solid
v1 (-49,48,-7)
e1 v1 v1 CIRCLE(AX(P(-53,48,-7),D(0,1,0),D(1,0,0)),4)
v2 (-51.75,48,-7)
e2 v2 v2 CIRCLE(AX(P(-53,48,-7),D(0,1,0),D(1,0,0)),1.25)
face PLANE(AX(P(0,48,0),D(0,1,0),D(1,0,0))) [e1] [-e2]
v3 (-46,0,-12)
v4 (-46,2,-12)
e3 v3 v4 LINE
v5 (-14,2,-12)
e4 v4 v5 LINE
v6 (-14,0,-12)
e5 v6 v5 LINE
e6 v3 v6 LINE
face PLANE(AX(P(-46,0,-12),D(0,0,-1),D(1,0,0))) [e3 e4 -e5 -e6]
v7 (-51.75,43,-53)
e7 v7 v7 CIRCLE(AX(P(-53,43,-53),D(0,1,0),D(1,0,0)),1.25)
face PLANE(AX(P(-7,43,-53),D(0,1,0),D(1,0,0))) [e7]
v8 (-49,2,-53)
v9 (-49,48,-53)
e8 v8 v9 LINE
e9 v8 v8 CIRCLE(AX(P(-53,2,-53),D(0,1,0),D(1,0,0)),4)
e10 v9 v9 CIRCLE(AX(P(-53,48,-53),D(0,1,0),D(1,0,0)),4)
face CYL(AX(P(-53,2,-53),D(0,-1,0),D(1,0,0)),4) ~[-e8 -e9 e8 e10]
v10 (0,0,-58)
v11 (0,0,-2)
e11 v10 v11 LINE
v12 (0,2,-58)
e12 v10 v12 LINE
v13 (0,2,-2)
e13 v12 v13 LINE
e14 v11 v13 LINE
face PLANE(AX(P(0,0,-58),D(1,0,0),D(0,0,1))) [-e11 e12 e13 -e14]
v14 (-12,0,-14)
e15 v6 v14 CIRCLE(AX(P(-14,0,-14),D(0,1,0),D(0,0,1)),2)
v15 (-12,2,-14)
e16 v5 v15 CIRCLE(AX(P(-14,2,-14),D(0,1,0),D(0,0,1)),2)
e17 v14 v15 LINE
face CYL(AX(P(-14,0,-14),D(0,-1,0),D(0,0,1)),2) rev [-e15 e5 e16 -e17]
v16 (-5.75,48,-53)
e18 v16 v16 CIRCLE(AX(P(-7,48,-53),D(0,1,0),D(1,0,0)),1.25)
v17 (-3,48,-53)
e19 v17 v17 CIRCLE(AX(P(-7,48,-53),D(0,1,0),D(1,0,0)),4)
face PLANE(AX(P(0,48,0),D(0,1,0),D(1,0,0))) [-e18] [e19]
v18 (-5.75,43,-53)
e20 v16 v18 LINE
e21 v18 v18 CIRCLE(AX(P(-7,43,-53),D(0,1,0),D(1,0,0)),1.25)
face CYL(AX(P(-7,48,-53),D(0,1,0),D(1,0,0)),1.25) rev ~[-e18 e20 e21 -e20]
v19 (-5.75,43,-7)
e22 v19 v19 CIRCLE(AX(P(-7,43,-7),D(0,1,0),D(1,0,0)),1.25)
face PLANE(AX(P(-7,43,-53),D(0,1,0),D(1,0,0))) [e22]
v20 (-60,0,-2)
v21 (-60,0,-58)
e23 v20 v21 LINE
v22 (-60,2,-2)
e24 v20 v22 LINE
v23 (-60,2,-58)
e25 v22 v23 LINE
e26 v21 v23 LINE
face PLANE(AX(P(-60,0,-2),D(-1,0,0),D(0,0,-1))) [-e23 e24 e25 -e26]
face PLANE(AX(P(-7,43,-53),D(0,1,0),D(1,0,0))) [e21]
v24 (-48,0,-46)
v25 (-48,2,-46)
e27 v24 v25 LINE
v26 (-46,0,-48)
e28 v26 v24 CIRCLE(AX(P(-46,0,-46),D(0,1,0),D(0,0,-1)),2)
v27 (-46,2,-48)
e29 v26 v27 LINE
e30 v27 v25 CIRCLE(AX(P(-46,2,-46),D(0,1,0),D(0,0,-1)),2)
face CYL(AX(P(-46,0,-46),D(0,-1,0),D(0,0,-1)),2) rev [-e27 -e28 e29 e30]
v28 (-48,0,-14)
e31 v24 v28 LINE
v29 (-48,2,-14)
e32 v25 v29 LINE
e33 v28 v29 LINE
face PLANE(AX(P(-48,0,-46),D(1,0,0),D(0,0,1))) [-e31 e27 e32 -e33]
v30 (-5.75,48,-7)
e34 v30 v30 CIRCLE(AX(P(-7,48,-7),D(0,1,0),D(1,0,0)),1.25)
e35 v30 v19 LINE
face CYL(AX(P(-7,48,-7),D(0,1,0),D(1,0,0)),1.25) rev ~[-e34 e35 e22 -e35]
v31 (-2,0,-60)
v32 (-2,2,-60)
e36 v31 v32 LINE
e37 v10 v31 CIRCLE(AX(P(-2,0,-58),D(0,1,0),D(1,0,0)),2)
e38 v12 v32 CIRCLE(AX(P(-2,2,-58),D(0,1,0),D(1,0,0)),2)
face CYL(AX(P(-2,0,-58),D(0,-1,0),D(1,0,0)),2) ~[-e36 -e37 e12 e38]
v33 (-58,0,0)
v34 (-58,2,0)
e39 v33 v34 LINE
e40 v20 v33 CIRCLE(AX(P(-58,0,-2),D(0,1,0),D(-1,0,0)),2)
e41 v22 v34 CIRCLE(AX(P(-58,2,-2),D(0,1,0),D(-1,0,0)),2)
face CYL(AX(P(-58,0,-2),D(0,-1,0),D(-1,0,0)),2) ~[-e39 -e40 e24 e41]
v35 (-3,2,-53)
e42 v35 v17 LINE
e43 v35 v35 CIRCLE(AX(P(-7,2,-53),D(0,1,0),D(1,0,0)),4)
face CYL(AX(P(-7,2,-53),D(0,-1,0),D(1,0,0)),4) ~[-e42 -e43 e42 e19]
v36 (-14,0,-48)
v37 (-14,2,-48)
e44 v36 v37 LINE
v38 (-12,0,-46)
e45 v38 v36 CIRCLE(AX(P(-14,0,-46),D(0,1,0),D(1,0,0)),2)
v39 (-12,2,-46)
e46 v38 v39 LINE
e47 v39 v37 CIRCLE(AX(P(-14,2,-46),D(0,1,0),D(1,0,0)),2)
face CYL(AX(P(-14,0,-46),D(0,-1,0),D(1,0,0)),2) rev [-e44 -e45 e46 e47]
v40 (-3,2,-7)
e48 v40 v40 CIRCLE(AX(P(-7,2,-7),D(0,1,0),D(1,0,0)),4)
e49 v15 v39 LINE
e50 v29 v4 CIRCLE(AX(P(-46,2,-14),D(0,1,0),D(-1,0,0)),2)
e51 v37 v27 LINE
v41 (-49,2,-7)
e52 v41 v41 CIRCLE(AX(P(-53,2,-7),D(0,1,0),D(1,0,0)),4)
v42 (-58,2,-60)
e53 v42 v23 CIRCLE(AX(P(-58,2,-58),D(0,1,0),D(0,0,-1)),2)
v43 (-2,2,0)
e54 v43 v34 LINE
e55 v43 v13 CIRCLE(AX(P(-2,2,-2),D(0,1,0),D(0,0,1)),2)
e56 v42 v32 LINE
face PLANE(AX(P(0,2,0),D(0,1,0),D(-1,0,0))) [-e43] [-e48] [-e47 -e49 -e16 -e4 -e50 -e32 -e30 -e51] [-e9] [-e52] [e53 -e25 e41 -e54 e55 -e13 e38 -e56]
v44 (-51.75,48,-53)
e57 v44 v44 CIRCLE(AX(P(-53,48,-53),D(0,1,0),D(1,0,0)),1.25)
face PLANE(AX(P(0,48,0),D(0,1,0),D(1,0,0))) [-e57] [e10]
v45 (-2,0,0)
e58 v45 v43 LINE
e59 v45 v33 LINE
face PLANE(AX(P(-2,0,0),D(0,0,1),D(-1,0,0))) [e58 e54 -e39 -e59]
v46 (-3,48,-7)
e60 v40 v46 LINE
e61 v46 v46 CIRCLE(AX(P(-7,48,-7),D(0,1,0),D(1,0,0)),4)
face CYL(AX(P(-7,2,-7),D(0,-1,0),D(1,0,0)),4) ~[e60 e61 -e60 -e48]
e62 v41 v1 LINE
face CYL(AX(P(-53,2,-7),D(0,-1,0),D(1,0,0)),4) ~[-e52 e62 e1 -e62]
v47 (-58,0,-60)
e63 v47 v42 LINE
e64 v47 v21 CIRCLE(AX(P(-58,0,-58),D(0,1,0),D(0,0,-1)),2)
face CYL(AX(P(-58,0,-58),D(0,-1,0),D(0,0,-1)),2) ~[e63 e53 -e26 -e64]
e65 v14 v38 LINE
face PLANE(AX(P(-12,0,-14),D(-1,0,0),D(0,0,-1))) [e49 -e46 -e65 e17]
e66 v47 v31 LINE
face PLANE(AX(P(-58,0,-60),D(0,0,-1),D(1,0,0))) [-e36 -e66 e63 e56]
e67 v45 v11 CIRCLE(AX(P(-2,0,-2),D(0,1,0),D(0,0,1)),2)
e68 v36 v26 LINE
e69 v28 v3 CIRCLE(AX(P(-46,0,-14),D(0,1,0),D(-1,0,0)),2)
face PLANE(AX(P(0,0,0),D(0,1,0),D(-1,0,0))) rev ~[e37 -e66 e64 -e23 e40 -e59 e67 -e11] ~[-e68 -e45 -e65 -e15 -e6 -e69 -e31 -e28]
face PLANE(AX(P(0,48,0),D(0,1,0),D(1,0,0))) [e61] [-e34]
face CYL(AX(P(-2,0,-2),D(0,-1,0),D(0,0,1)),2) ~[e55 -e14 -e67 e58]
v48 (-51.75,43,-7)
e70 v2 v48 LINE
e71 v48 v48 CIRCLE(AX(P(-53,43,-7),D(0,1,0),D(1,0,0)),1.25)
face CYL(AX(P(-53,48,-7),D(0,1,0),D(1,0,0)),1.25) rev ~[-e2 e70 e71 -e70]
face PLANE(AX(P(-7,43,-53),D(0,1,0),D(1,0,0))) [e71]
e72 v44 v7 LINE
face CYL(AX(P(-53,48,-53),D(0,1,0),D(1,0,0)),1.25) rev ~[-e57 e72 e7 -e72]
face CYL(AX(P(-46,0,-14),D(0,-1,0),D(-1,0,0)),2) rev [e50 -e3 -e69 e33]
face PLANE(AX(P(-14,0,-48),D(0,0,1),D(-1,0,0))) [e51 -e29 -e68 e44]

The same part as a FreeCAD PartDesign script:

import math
import FreeCAD as App
import Part
import Sketcher
Q = App.Units.Quantity

doc = App.newDocument("Part")
body = doc.addObject("PartDesign::Body", "Body")

sketch1 = body.newObject("Sketcher::SketchObject", "Sketch")
sketch1.AttachmentSupport = (doc.getObject("XZ_Plane"), [""])
sketch1.MapMode = "FlatFace"
sketch1.addGeometry([
    Part.LineSegment(App.Vector(-58, 0, 0), App.Vector(-2, 0, 0)),
    Part.ArcOfCircle(Part.Circle(App.Vector(-2, -2, 0), App.Vector(0, 0, 1), 2), math.radians(0), math.radians(90)),
    Part.LineSegment(App.Vector(0, -2, 0), App.Vector(0, -58, 0)),
    Part.ArcOfCircle(Part.Circle(App.Vector(-2, -58, 0), App.Vector(0, 0, 1), 2), math.radians(-90), math.radians(0)),
    Part.LineSegment(App.Vector(-2, -60, 0), App.Vector(-58, -60, 0)),
    Part.ArcOfCircle(Part.Circle(App.Vector(-58, -58, 0), App.Vector(0, 0, 1), 2), math.radians(180), math.radians(270)),
    Part.LineSegment(App.Vector(-60, -58, 0), App.Vector(-60, -2, 0)),
    Part.ArcOfCircle(Part.Circle(App.Vector(-58, -2, 0), App.Vector(0, 0, 1), 2), math.radians(90), math.radians(180)),
    Part.LineSegment(App.Vector(-48, -14, 0), App.Vector(-48, -46, 0)),
    Part.ArcOfCircle(Part.Circle(App.Vector(-46, -46, 0), App.Vector(0, 0, 1), 2), math.radians(180), math.radians(270)),
    Part.LineSegment(App.Vector(-46, -48, 0), App.Vector(-14, -48, 0)),
    Part.ArcOfCircle(Part.Circle(App.Vector(-14, -46, 0), App.Vector(0, 0, 1), 2), math.radians(-90), math.radians(0)),
    Part.LineSegment(App.Vector(-12, -46, 0), App.Vector(-12, -14, 0)),
    Part.ArcOfCircle(Part.Circle(App.Vector(-14, -14, 0), App.Vector(0, 0, 1), 2), math.radians(0), math.radians(90)),
    Part.LineSegment(App.Vector(-14, -12, 0), App.Vector(-46, -12, 0)),
    Part.ArcOfCircle(Part.Circle(App.Vector(-46, -14, 0), App.Vector(0, 0, 1), 2), math.radians(90), math.radians(180)),
], False)
sketch1.addConstraint([
    Sketcher.Constraint("Tangent", 0, 2, 1, 2),
    Sketcher.Constraint("Tangent", 1, 1, 2, 1),
    Sketcher.Constraint("Tangent", 2, 2, 3, 2),
    Sketcher.Constraint("Tangent", 3, 1, 4, 1),
    Sketcher.Constraint("Tangent", 4, 2, 5, 2),
    Sketcher.Constraint("Tangent", 5, 1, 6, 1),
    Sketcher.Constraint("Tangent", 6, 2, 7, 2),
    Sketcher.Constraint("Tangent", 7, 1, 0, 1),
    Sketcher.Constraint("Tangent", 8, 2, 9, 1),
    Sketcher.Constraint("Tangent", 9, 2, 10, 1),
    Sketcher.Constraint("Tangent", 10, 2, 11, 1),
    Sketcher.Constraint("Tangent", 11, 2, 12, 1),
    Sketcher.Constraint("Tangent", 12, 2, 13, 1),
    Sketcher.Constraint("Tangent", 13, 2, 14, 1),
    Sketcher.Constraint("Tangent", 14, 2, 15, 1),
    Sketcher.Constraint("Tangent", 15, 2, 8, 1),
    Sketcher.Constraint("Horizontal", 0),
    Sketcher.Constraint("Vertical", 2),
    Sketcher.Constraint("Horizontal", 4),
    Sketcher.Constraint("Vertical", 6),
    Sketcher.Constraint("Vertical", 8),
    Sketcher.Constraint("Horizontal", 10),
    Sketcher.Constraint("Vertical", 12),
    Sketcher.Constraint("Horizontal", 14),
    Sketcher.Constraint("Equal", 1, 3),
    Sketcher.Constraint("Equal", 3, 5),
    Sketcher.Constraint("Equal", 5, 7),
    Sketcher.Constraint("Equal", 7, 9),
    Sketcher.Constraint("Equal", 9, 11),
    Sketcher.Constraint("Equal", 11, 13),
    Sketcher.Constraint("Equal", 13, 15),
    Sketcher.Constraint("PointOnObject", 0, 2, -1),
    Sketcher.Constraint("PointOnObject", 1, 1, -2),
    Sketcher.Constraint("Equal", 4, 2),
    Sketcher.Constraint("Equal", 14, 8),
    Sketcher.Constraint("Radius", 1, Q("2 mm")),
    Sketcher.Constraint("DistanceY", 3, 1, -1, 1, Q("60 mm")),
    Sketcher.Constraint("DistanceX", 11, 2, -1, 1, Q("12 mm")),
    Sketcher.Constraint("DistanceY", 13, 2, -1, 1, Q("12 mm")),
    Sketcher.Constraint("DistanceX", 5, 3, 9, 3, Q("12 mm")),
])
pad1 = body.newObject("PartDesign::Pad", "Pad")
pad1.Profile = sketch1
pad1.Length = 2
pad1.Reversed = True

sketch2 = body.newObject("Sketcher::SketchObject", "Sketch001")
sketch2.AttachmentSupport = (doc.getObject("XZ_Plane"), [""])
sketch2.MapMode = "FlatFace"
sketch2.AttachmentOffset = App.Placement(App.Vector(0, 0, -2), App.Rotation())
sketch2.addGeometry([
    Part.Circle(App.Vector(-53, -7, 0), App.Vector(0, 0, 1), 4),
    Part.Circle(App.Vector(-7, -7, 0), App.Vector(0, 0, 1), 4),
    Part.Circle(App.Vector(-53, -53, 0), App.Vector(0, 0, 1), 4),
    Part.Circle(App.Vector(-7, -53, 0), App.Vector(0, 0, 1), 4),
], False)
sketch2.addConstraint([
    Sketcher.Constraint("Equal", 0, 1),
    Sketcher.Constraint("Equal", 1, 2),
    Sketcher.Constraint("Equal", 2, 3),
    Sketcher.Constraint("Horizontal", 0, 3, 1, 3),
    Sketcher.Constraint("Horizontal", 2, 3, 3, 3),
    Sketcher.Constraint("Vertical", 0, 3, 2, 3),
    Sketcher.Constraint("Vertical", 1, 3, 3, 3),
    Sketcher.Constraint("Diameter", 0, Q("8 mm")),
    Sketcher.Constraint("DistanceY", 0, 3, -1, 1, Q("7 mm")),
    Sketcher.Constraint("DistanceX", 1, 3, -1, 1, Q("7 mm")),
    Sketcher.Constraint("DistanceX", 0, 3, -1, 1, Q("53 mm")),
    Sketcher.Constraint("DistanceY", 2, 3, -1, 1, Q("53 mm")),
])
pad2 = body.newObject("PartDesign::Pad", "Pad001")
pad2.Profile = sketch2
pad2.Length = 46
pad2.Reversed = True

sketch3 = body.newObject("Sketcher::SketchObject", "Sketch002")
sketch3.AttachmentSupport = (doc.getObject("XZ_Plane"), [""])
sketch3.MapMode = "FlatFace"
sketch3.AttachmentOffset = App.Placement(App.Vector(0, 0, -48), App.Rotation())
sketch3.addGeometry([
    Part.Circle(App.Vector(-53, -53, 0), App.Vector(0, 0, 1), 1.25),
    Part.Circle(App.Vector(-7, -53, 0), App.Vector(0, 0, 1), 1.25),
    Part.Circle(App.Vector(-7, -7, 0), App.Vector(0, 0, 1), 1.25),
    Part.Circle(App.Vector(-53, -7, 0), App.Vector(0, 0, 1), 1.25),
], False)
sketch3.addConstraint([
    Sketcher.Constraint("Equal", 0, 1),
    Sketcher.Constraint("Equal", 1, 2),
    Sketcher.Constraint("Equal", 2, 3),
    Sketcher.Constraint("Horizontal", 0, 3, 1, 3),
    Sketcher.Constraint("Horizontal", 2, 3, 3, 3),
    Sketcher.Constraint("Vertical", 1, 3, 2, 3),
    Sketcher.Constraint("Vertical", 0, 3, 3, 3),
    Sketcher.Constraint("Diameter", 0, Q("2.5 mm")),
    Sketcher.Constraint("DistanceX", 0, 3, -1, 1, Q("53 mm")),
    Sketcher.Constraint("DistanceY", 0, 3, -1, 1, Q("53 mm")),
    Sketcher.Constraint("DistanceX", 1, 3, -1, 1, Q("7 mm")),
    Sketcher.Constraint("DistanceY", 2, 3, -1, 1, Q("7 mm")),
])
pocket1 = body.newObject("PartDesign::Pocket", "Pocket")
pocket1.Profile = sketch3
pocket1.Length = 5
pocket1.Reversed = True

doc.recompute()
